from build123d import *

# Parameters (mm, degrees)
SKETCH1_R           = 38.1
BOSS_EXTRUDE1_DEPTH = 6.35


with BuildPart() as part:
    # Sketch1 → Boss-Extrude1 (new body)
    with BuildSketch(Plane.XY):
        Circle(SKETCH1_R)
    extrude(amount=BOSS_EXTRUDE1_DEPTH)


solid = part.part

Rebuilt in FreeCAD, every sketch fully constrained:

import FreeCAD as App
import Part
import Sketcher

V = App.Vector
Q = App.Units.Quantity

doc = App.newDocument("Part")
body = doc.addObject("PartDesign::Body", "Body")

sketch1 = doc.addObject("Sketcher::SketchObject", "Sketch")
body.addObject(sketch1)
sketch1.AttachmentSupport = (doc.XY_Plane, [""])
sketch1.MapMode = "FlatFace"
sketch1.addGeometry(Part.Circle(V(0, 0, 0), V(0, 0, 1), 38), False)
sketch1.addConstraint(Sketcher.Constraint("Coincident", 0, 3, -1, 1))
sketch1.addConstraint(Sketcher.Constraint("Diameter", 0, Q("3 in")))
pad1 = doc.addObject("PartDesign::Pad", "Pad")
body.addObject(pad1)
pad1.Profile = sketch1
pad1.Length = Q("0.25 in")

doc.recompute()
